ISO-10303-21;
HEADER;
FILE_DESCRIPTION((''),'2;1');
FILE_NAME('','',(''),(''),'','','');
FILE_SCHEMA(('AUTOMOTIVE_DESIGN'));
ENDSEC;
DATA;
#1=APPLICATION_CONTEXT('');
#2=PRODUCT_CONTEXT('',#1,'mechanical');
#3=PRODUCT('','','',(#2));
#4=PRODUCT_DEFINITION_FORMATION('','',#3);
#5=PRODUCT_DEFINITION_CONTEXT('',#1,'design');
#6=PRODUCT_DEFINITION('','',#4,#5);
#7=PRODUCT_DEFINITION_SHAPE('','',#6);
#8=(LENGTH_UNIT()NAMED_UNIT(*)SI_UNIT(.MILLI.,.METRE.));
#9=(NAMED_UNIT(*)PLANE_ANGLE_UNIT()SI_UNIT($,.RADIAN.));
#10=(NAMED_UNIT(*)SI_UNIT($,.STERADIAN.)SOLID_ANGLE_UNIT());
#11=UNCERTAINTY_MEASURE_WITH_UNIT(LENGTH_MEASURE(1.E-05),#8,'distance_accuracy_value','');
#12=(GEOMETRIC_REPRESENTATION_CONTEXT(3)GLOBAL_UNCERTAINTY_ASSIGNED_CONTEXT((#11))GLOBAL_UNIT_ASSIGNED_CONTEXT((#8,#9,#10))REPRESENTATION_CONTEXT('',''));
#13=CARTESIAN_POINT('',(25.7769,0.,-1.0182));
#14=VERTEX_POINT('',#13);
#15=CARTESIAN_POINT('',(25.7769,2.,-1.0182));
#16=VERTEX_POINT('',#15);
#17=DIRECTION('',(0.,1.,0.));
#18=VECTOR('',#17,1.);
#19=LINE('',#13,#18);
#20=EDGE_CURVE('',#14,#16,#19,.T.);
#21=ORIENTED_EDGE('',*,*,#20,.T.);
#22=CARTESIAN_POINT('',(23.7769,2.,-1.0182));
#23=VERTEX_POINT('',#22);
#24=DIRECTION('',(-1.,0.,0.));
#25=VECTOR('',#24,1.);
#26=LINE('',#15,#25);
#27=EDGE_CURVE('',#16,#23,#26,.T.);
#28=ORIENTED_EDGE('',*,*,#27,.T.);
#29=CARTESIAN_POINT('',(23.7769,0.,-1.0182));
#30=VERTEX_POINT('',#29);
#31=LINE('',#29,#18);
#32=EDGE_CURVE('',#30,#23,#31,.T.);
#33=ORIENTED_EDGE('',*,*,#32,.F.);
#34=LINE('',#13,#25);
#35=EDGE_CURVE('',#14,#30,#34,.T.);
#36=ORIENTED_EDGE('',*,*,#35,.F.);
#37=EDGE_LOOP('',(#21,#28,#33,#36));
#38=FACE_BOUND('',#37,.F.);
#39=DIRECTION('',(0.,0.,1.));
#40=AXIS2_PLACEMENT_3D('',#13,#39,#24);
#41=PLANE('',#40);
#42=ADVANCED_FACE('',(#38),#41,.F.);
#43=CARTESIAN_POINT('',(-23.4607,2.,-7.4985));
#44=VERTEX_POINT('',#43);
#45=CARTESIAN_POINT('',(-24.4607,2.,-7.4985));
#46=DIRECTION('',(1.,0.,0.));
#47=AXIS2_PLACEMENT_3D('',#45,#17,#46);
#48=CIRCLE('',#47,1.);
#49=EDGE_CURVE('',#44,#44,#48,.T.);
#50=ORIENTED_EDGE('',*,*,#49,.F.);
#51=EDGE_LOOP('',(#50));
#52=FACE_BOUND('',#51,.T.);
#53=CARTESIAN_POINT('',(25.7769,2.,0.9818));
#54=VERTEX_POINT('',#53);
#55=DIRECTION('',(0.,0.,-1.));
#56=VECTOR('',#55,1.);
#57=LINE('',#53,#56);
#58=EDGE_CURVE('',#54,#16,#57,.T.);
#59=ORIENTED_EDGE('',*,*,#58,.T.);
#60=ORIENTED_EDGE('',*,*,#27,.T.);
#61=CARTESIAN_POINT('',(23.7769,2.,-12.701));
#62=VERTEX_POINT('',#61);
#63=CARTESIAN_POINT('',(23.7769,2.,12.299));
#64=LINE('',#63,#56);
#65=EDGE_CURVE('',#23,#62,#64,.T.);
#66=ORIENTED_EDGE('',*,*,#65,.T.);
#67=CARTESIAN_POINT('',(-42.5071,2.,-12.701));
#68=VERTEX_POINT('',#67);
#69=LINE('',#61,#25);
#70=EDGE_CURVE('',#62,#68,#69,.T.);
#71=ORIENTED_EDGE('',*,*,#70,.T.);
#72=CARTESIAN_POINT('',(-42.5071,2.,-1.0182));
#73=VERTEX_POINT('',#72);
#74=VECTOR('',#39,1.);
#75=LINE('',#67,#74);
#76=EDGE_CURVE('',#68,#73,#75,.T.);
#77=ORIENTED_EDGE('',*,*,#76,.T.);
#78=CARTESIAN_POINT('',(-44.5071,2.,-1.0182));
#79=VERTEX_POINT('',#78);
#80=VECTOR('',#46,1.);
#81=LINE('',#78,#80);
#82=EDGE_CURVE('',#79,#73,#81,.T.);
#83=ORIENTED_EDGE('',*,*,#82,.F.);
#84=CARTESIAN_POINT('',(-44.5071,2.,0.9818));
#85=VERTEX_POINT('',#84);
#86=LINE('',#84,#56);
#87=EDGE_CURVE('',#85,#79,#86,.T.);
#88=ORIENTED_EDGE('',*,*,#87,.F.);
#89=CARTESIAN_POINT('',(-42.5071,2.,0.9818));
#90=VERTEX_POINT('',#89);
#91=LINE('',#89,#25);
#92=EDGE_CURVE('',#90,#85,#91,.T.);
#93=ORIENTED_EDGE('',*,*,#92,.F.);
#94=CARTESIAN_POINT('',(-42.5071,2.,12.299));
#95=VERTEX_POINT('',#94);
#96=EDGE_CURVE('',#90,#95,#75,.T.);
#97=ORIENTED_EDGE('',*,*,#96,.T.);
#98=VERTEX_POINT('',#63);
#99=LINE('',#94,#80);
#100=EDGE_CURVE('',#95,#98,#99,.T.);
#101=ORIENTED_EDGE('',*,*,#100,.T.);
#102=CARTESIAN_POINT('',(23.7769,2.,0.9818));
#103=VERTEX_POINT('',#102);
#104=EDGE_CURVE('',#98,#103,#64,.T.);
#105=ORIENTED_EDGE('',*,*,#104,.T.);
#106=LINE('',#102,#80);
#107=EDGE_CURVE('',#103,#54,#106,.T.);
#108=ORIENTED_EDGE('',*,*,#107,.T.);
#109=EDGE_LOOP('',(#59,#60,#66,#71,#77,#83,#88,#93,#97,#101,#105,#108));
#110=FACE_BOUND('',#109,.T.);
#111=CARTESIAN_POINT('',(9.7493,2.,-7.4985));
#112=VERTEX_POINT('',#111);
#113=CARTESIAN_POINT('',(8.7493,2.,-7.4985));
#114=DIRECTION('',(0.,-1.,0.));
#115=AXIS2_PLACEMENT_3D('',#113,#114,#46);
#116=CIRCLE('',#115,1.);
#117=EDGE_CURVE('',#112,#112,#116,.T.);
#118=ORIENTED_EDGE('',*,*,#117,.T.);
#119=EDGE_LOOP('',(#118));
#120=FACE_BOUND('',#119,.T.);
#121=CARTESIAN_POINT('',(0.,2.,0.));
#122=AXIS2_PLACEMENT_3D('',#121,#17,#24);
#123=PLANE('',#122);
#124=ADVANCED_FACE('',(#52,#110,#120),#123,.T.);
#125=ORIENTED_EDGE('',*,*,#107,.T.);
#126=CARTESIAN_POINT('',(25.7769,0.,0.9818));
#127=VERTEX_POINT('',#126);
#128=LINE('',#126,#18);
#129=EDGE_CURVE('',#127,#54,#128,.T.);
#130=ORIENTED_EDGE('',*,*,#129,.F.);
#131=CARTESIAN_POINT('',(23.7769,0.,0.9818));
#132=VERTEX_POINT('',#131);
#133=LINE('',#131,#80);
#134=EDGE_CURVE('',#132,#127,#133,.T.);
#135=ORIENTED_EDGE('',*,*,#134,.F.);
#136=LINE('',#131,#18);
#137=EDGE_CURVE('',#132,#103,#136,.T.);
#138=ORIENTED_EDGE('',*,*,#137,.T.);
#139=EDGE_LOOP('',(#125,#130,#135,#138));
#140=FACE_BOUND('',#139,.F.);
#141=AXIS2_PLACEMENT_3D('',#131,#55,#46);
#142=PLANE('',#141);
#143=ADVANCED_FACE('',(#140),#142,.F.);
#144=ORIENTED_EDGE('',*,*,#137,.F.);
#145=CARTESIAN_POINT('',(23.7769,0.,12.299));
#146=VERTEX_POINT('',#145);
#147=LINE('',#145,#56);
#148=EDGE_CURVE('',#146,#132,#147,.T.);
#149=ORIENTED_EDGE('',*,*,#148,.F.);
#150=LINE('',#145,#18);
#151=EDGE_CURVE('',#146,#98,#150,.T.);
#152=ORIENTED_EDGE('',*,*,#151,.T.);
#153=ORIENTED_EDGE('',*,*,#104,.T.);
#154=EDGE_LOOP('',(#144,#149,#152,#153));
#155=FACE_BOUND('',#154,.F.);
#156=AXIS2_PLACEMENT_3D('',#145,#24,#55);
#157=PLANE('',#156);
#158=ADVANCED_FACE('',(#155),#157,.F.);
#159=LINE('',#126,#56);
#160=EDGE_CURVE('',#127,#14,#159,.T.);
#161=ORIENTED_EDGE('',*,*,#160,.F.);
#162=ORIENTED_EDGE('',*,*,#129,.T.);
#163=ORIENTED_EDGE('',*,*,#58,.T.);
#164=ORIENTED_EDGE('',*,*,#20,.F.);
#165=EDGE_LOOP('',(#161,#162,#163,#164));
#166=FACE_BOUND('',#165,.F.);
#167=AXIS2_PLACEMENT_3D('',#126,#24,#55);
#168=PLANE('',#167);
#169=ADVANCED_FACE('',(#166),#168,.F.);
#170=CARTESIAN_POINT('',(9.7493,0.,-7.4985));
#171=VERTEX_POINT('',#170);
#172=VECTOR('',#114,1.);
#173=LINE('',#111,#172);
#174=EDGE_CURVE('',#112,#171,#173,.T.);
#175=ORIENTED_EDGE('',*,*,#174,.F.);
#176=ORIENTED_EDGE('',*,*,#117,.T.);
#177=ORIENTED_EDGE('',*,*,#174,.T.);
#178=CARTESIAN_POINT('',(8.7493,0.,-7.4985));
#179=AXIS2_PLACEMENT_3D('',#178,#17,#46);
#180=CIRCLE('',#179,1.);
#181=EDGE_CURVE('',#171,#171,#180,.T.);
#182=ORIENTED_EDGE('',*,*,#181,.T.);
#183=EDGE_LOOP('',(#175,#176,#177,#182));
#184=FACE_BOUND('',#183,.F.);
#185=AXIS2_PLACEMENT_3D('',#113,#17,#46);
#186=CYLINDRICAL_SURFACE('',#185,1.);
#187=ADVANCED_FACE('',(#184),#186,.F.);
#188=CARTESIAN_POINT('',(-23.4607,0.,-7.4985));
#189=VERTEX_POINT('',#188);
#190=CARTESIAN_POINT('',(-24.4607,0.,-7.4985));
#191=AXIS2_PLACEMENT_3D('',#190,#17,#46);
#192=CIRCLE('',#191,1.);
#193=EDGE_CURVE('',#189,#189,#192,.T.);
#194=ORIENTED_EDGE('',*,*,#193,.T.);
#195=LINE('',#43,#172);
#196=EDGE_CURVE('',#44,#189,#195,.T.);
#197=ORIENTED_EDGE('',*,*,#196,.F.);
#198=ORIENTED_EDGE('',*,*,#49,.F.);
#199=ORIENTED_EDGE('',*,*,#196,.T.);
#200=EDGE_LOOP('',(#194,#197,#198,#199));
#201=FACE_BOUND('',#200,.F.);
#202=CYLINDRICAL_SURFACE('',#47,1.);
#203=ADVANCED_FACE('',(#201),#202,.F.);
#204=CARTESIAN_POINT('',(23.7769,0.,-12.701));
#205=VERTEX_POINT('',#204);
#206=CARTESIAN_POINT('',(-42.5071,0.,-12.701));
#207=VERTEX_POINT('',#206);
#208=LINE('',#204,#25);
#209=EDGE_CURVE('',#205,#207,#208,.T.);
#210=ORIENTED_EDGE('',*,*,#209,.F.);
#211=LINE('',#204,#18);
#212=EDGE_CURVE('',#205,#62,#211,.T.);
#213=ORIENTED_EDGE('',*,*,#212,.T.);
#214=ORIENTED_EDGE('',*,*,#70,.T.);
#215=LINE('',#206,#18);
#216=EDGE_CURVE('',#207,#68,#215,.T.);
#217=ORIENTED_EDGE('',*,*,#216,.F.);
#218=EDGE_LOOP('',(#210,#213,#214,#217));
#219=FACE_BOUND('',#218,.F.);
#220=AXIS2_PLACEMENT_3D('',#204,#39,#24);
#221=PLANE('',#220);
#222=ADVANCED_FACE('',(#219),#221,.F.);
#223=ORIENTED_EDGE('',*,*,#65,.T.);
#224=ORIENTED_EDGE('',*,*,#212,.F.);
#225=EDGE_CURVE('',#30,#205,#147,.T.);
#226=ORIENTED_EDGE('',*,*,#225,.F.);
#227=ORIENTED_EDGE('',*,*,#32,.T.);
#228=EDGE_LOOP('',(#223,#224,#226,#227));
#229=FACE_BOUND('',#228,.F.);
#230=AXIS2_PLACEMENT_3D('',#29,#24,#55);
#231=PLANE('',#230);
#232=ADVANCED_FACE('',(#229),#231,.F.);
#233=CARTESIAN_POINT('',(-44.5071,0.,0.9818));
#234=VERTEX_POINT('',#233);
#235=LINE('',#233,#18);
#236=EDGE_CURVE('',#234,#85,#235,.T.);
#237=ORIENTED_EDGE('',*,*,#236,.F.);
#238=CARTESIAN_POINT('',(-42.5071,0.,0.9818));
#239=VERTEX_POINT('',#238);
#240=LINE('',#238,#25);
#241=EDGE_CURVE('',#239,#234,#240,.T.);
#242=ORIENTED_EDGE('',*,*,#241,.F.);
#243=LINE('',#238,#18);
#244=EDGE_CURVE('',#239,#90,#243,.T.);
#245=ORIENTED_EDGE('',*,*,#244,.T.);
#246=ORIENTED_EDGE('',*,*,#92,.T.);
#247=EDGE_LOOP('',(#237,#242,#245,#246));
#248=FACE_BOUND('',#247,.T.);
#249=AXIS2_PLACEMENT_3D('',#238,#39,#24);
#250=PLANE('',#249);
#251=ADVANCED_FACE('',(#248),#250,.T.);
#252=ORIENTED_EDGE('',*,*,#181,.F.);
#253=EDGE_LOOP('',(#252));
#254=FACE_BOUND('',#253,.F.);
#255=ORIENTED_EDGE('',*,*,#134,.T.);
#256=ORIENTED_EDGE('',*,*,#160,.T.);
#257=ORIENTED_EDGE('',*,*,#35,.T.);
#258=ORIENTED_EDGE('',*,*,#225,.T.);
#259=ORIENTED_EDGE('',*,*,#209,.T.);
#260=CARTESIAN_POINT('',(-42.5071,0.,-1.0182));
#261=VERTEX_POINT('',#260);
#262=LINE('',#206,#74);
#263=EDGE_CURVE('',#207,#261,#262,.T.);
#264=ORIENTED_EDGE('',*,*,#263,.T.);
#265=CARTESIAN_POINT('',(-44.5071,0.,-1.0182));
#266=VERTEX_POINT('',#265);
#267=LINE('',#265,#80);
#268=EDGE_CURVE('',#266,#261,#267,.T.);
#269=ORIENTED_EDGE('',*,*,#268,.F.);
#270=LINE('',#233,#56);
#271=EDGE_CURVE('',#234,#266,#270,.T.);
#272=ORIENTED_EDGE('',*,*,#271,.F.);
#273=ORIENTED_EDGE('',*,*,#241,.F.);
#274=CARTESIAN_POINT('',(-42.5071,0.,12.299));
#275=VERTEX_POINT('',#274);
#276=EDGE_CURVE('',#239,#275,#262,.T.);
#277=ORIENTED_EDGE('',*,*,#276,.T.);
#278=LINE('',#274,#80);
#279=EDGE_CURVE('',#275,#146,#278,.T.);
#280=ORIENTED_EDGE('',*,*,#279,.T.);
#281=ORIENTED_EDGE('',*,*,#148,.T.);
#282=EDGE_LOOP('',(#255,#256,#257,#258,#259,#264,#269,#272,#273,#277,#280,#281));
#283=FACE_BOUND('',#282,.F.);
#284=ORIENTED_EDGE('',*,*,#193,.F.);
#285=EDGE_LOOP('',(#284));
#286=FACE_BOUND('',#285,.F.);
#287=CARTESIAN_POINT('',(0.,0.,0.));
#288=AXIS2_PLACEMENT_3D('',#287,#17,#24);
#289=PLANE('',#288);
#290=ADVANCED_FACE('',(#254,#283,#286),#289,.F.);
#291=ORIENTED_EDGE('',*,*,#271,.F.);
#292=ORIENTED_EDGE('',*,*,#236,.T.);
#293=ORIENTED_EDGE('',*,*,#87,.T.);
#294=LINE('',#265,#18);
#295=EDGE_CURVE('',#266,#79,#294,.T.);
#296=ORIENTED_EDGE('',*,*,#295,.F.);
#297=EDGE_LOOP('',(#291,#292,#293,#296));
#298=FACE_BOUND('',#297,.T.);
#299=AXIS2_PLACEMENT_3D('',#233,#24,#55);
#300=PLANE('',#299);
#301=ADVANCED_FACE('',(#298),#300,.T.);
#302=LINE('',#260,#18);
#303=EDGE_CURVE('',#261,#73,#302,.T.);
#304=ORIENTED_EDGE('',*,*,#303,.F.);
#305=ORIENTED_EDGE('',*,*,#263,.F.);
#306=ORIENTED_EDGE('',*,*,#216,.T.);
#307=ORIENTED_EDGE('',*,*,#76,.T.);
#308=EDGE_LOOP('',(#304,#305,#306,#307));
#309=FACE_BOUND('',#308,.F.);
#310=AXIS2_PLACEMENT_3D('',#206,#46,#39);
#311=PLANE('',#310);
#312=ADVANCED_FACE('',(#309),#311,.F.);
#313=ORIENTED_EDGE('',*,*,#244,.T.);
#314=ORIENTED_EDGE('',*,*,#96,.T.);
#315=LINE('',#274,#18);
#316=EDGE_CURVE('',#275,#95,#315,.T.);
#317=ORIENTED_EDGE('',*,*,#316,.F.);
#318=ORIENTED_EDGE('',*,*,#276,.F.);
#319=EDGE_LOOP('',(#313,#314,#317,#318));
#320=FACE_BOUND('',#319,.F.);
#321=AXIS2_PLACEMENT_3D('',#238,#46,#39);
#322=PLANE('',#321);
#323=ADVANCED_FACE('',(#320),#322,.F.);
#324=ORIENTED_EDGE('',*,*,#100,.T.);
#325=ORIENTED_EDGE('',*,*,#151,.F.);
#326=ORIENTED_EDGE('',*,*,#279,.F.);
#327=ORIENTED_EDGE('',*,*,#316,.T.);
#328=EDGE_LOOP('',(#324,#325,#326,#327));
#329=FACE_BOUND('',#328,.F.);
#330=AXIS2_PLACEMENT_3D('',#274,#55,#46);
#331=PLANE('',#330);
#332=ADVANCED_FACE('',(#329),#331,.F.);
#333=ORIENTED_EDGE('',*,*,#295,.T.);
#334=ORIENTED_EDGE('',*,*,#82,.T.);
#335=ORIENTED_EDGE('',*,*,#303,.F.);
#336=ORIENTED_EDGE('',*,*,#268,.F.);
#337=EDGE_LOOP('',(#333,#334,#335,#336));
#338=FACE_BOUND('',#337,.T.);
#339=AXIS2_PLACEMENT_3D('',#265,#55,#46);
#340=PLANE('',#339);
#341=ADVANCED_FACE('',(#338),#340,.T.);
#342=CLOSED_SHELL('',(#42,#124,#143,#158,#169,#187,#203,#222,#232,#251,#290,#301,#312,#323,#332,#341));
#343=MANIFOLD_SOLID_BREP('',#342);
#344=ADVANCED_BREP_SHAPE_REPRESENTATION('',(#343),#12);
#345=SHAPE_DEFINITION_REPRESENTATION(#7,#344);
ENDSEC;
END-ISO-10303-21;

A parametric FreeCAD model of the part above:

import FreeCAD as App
import Part
import Sketcher
Q = App.Units.Quantity

doc = App.newDocument("Part")
body = doc.addObject("PartDesign::Body", "Body")

# Sketch on XZ plane
sketch1 = body.newObject("Sketcher::SketchObject", "Sketch")
sketch1.AttachmentSupport = (doc.getObject("XZ_Plane"), [""])
sketch1.MapMode = "FlatFace"
sketch1.addGeometry([
    Part.LineSegment(App.Vector(-42.5, 1, 0), App.Vector(-42.5, 12.3, 0)),  # 0
    Part.LineSegment(App.Vector(-42.5, 12.3, 0), App.Vector(23.8, 12.3, 0)),  # 1
    Part.LineSegment(App.Vector(23.8, 12.3, 0), App.Vector(23.8, 1, 0)),  # 2
    Part.LineSegment(App.Vector(23.8, 1, 0), App.Vector(25.8, 1, 0)),  # 3
    Part.LineSegment(App.Vector(25.8, 1, 0), App.Vector(25.8, -1, 0)),  # 4
    Part.LineSegment(App.Vector(25.8, -1, 0), App.Vector(23.8, -1, 0)),  # 5
    Part.LineSegment(App.Vector(23.8, -1, 0), App.Vector(23.8, -12.7, 0)),  # 6
    Part.LineSegment(App.Vector(23.8, -12.7, 0), App.Vector(-42.5, -12.7, 0)),  # 7
    Part.LineSegment(App.Vector(-42.5, -12.7, 0), App.Vector(-42.5, -1, 0)),  # 8
    Part.LineSegment(App.Vector(-42.5, -1, 0), App.Vector(-44.5, -1, 0)),  # 9
    Part.LineSegment(App.Vector(-44.5, -1, 0), App.Vector(-44.5, 1, 0)),  # 10
    Part.LineSegment(App.Vector(-44.5, 1, 0), App.Vector(-42.5, 1, 0)),  # 11
], False)
sketch1.addConstraint([
    Sketcher.Constraint("Coincident", 0, 2, 1, 1),
    Sketcher.Constraint("Coincident", 1, 2, 2, 1),
    Sketcher.Constraint("Coincident", 2, 2, 3, 1),
    Sketcher.Constraint("Coincident", 3, 2, 4, 1),
    Sketcher.Constraint("Coincident", 4, 2, 5, 1),
    Sketcher.Constraint("Coincident", 5, 2, 6, 1),
    Sketcher.Constraint("Coincident", 6, 2, 7, 1),
    Sketcher.Constraint("Coincident", 7, 2, 8, 1),
    Sketcher.Constraint("Coincident", 8, 2, 9, 1),
    Sketcher.Constraint("Coincident", 9, 2, 10, 1),
    Sketcher.Constraint("Coincident", 10, 2, 11, 1),
    Sketcher.Constraint("Coincident", 11, 2, 0, 1),
    Sketcher.Constraint("Vertical", 0),
    Sketcher.Constraint("Horizontal", 1),
    Sketcher.Constraint("Vertical", 2),
    Sketcher.Constraint("Horizontal", 3),
    Sketcher.Constraint("Vertical", 4),
    Sketcher.Constraint("Horizontal", 5),
    Sketcher.Constraint("Vertical", 6),
    Sketcher.Constraint("Horizontal", 7),
    Sketcher.Constraint("Vertical", 8),
    Sketcher.Constraint("Horizontal", 9),
    Sketcher.Constraint("Vertical", 10),
    Sketcher.Constraint("Horizontal", 11),
    Sketcher.Constraint("Horizontal", 5, 2, 8, 2),
    Sketcher.Constraint("Horizontal", 3, 2, 10, 2),
    Sketcher.Constraint("Vertical", 2, 2, 5, 2),
    Sketcher.Constraint("Vertical", 0, 2, 7, 2),
    Sketcher.Constraint("Equal", 5, 9),
    Sketcher.Constraint("Equal", 11, 4),
    Sketcher.Constraint("DistanceX", 3, 1, 3, 2, Q("2 mm")),
    Sketcher.Constraint("DistanceY", 6, 2, 1, 2, Q("25 mm")),
    Sketcher.Constraint("DistanceX", 1, 1, 1, 2, Q("66.284 mm")),
    Sketcher.Constraint("DistanceY", 0, 1, 0, 2, Q("11.3172 mm")),
    Sketcher.Constraint("DistanceX", 0, 2, -1, 1, Q("42.507 mm")),
    Sketcher.Constraint("DistanceY", -1, 1, 0, 2, Q("12.299 mm")),
])
pad1 = body.newObject("PartDesign::Pad", "Pad")
pad1.Profile = sketch1
pad1.Length = 2
pad1.Reversed = True

# Sketch on XZ plane
sketch2 = body.newObject("Sketcher::SketchObject", "Sketch001")
sketch2.AttachmentSupport = (doc.getObject("XZ_Plane"), [""])
sketch2.MapMode = "FlatFace"
sketch2.AttachmentOffset = App.Placement(App.Vector(0, 0, -2), App.Rotation())
sketch2.addGeometry([
    Part.Circle(App.Vector(8.7, -7.5, 0), App.Vector(0, 0, 1), 1),
    Part.Circle(App.Vector(-24.5, -7.5, 0), App.Vector(0, 0, 1), 1),
], False)
sketch2.addConstraint([
    Sketcher.Constraint("Equal", 0, 1),
    Sketcher.Constraint("Horizontal", 0, 3, 1, 3),
    Sketcher.Constraint("Diameter", 0, Q("2 mm")),
    Sketcher.Constraint("DistanceX", 1, 3, 0, 3, Q("33.21 mm")),
    Sketcher.Constraint("DistanceX", -1, 1, 0, 3, Q("8.7493 mm")),
    Sketcher.Constraint("DistanceY", 0, 3, -1, 1, Q("7.4985 mm")),
])
pocket1 = body.newObject("PartDesign::Pocket", "Pocket")
pocket1.Profile = sketch2
pocket1.Length = 2
pocket1.Reversed = True

doc.recompute()
